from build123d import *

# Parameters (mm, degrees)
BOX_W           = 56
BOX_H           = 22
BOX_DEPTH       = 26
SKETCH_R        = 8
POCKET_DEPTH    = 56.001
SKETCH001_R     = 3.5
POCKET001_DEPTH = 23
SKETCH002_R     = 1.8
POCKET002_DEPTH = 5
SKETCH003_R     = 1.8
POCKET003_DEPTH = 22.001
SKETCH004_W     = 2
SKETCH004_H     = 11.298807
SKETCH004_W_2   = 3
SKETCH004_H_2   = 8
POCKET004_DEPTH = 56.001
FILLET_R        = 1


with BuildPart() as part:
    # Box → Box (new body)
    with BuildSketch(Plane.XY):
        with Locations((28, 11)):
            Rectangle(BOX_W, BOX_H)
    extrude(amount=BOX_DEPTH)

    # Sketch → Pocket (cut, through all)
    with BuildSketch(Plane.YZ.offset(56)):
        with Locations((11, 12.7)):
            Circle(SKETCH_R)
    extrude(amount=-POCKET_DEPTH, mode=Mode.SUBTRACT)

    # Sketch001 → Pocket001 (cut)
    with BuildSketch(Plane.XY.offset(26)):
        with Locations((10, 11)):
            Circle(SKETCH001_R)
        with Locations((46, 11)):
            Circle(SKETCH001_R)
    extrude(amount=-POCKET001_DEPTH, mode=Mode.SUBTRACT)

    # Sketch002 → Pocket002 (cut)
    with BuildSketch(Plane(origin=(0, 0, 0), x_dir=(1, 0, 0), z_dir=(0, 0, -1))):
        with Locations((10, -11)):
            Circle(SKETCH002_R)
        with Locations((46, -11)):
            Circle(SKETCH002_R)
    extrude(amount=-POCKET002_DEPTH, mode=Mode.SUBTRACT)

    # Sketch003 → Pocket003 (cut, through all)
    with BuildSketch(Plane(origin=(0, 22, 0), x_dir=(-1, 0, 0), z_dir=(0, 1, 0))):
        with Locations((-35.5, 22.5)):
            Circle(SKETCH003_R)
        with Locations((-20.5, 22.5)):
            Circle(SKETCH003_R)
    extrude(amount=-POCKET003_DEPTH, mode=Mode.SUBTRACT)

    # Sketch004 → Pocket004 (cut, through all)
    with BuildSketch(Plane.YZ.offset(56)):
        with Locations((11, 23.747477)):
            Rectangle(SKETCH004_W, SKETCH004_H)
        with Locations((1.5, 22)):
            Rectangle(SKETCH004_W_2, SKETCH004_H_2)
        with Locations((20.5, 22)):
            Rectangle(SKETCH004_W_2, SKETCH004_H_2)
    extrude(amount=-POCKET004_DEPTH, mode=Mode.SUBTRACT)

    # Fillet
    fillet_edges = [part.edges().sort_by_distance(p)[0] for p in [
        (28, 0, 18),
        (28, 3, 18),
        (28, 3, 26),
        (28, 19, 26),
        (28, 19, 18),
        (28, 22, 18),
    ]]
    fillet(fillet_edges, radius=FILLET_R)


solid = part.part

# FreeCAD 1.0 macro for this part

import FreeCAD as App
import Part
import Sketcher


def edges_at(feature, points):
    """Names of the edges that pass closest to the given points."""
    edges = feature.Shape.Edges
    near = lambda p: min(range(len(edges)), key=lambda i: edges[i].distToShape(Part.Vertex(*p))[0])
    return sorted({f"Edge{near(p) + 1}" for p in points})


def add_polygon(sketch, points):
    """Adds a closed chain of lines whose ends are joined by coincident constraints."""
    first, n = sketch.GeometryCount, len(points)
    for a, b in zip(points, points[1:] + points[:1]):
        sketch.addGeometry(Part.LineSegment(App.Vector(*a, 0), App.Vector(*b, 0)), False)
    for i in range(n):
        sketch.addConstraint(Sketcher.Constraint("Coincident", first + i, 2, first + (i + 1) % n, 1))

doc = App.newDocument("Part")
body = doc.addObject("PartDesign::Body", "Body")

sketch1 = body.newObject("Sketcher::SketchObject", "Sketch")
sketch1.AttachmentSupport = (doc.getObject("XY_Plane"), [""])
sketch1.MapMode = "FlatFace"
add_polygon(sketch1, [(0, 22), (0, 0), (56, 0), (56, 22)])
sketch1.addConstraint([
    Sketcher.Constraint("Vertical", 0),
    Sketcher.Constraint("Horizontal", 1),
    Sketcher.Constraint("Vertical", 2),
    Sketcher.Constraint("Horizontal", 3),
    Sketcher.Constraint("Coincident", 0, 2, -1, 1),
    Sketcher.Constraint("DistanceX", 1, 1, 1, 2, 56.0),
    Sketcher.Constraint("DistanceY", 0, 2, 0, 1, 22.0),
])
pad1 = body.newObject("PartDesign::Pad", "Pad")
pad1.Profile = sketch1
pad1.Length = 26

sketch2 = body.newObject("Sketcher::SketchObject", "Sketch001")
sketch2.AttachmentSupport = (doc.getObject("YZ_Plane"), [""])
sketch2.MapMode = "FlatFace"
sketch2.AttachmentOffset = App.Placement(App.Vector(0, 0, 56), App.Rotation())
sketch2.addGeometry(Part.Circle(App.Vector(11, 13, 0), App.Vector(0, 0, 1), 8), False)
sketch2.addConstraint([
    Sketcher.Constraint("Diameter", 0, 16.0),
    Sketcher.Constraint("DistanceX", -1, 1, 0, 3, 11.0),
    Sketcher.Constraint("DistanceY", -1, 1, 0, 3, 12.7),
])
pocket1 = body.newObject("PartDesign::Pocket", "Pocket")
pocket1.Profile = sketch2
pocket1.Type = "ThroughAll"

sketch3 = body.newObject("Sketcher::SketchObject", "Sketch002")
sketch3.AttachmentSupport = (doc.getObject("XY_Plane"), [""])
sketch3.MapMode = "FlatFace"
sketch3.AttachmentOffset = App.Placement(App.Vector(0, 0, 26), App.Rotation())
sketch3.addGeometry([
    Part.Circle(App.Vector(10, 11, 0), App.Vector(0, 0, 1), 3.5),
    Part.Circle(App.Vector(46, 11, 0), App.Vector(0, 0, 1), 3.5),
], False)
sketch3.addConstraint([
    Sketcher.Constraint("Equal", 0, 1),
    Sketcher.Constraint("Horizontal", 0, 3, 1, 3),
    Sketcher.Constraint("Diameter", 0, 7.0),
    Sketcher.Constraint("DistanceX", -1, 1, 0, 3, 10.0),
    Sketcher.Constraint("DistanceY", -1, 1, 0, 3, 11.0),
    Sketcher.Constraint("DistanceX", -1, 1, 1, 3, 46.0),
])
pocket2 = body.newObject("PartDesign::Pocket", "Pocket001")
pocket2.Profile = sketch3
pocket2.Length = 23

sketch4 = body.newObject("Sketcher::SketchObject", "Sketch003")
sketch4.AttachmentSupport = (doc.getObject("XY_Plane"), [""])
sketch4.MapMode = "FlatFace"
sketch4.addGeometry([
    Part.Circle(App.Vector(10, 11, 0), App.Vector(0, 0, 1), 1.8),
    Part.Circle(App.Vector(46, 11, 0), App.Vector(0, 0, 1), 1.8),
], False)
sketch4.addConstraint([
    Sketcher.Constraint("Equal", 0, 1),
    Sketcher.Constraint("Horizontal", 0, 3, 1, 3),
    Sketcher.Constraint("Diameter", 0, 3.6),
    Sketcher.Constraint("DistanceX", -1, 1, 0, 3, 10.0),
    Sketcher.Constraint("DistanceY", -1, 1, 0, 3, 11.0),
    Sketcher.Constraint("DistanceX", -1, 1, 1, 3, 46.0),
])
pocket3 = body.newObject("PartDesign::Pocket", "Pocket002")
pocket3.Profile = sketch4
pocket3.Length = 5
pocket3.Reversed = True

sketch5 = body.newObject("Sketcher::SketchObject", "Sketch004")
sketch5.AttachmentSupport = (doc.getObject("XZ_Plane"), [""])
sketch5.MapMode = "FlatFace"
sketch5.AttachmentOffset = App.Placement(App.Vector(0, 0, -22), App.Rotation())
sketch5.addGeometry([
    Part.Circle(App.Vector(35.5, 22.5, 0), App.Vector(0, 0, 1), 1.8),
    Part.Circle(App.Vector(20.5, 22.5, 0), App.Vector(0, 0, 1), 1.8),
], False)
sketch5.addConstraint([
    Sketcher.Constraint("Equal", 0, 1),
    Sketcher.Constraint("Horizontal", 0, 3, 1, 3),
    Sketcher.Constraint("Diameter", 0, 3.6),
    Sketcher.Constraint("DistanceX", 1, 3, 0, 3, 15.0),
    Sketcher.Constraint("DistanceX", -1, 1, 0, 3, 35.5),
    Sketcher.Constraint("DistanceY", -1, 1, 0, 3, 22.5),
])
pocket4 = body.newObject("PartDesign::Pocket", "Pocket003")
pocket4.Profile = sketch5
pocket4.Type = "ThroughAll"
pocket4.Reversed = True

sketch6 = body.newObject("Sketcher::SketchObject", "Sketch005")
sketch6.AttachmentSupport = (doc.getObject("YZ_Plane"), [""])
sketch6.MapMode = "FlatFace"
sketch6.AttachmentOffset = App.Placement(App.Vector(0, 0, 56), App.Rotation())
add_polygon(sketch6, [(10, 29.4), (10, 18.1), (12, 18.1), (12, 29.4)])
add_polygon(sketch6, [(0, 26), (0, 18), (3, 18), (3, 26)])
add_polygon(sketch6, [(19, 26), (19, 18), (22, 18), (22, 26)])
sketch6.addConstraint([
    Sketcher.Constraint("Vertical", 0),
    Sketcher.Constraint("Horizontal", 1),
    Sketcher.Constraint("Vertical", 2),
    Sketcher.Constraint("Horizontal", 3),
    Sketcher.Constraint("Vertical", 4),
    Sketcher.Constraint("Horizontal", 5),
    Sketcher.Constraint("Vertical", 6),
    Sketcher.Constraint("Horizontal", 7),
    Sketcher.Constraint("Vertical", 8),
    Sketcher.Constraint("Horizontal", 9),
    Sketcher.Constraint("Vertical", 10),
    Sketcher.Constraint("Horizontal", 11),
    Sketcher.Constraint("PointOnObject", 4, 2, -2),
    Sketcher.Constraint("Horizontal", 5, 2, 8, 2),
    Sketcher.Constraint("Horizontal", 7, 2, 10, 2),
    Sketcher.Constraint("Equal", 7, 9),
    Sketcher.Constraint("DistanceX", 1, 1, 1, 2, 2.0),
    Sketcher.Constraint("DistanceX", 5, 1, 5, 2, 3.0),
    Sketcher.Constraint("DistanceY", 4, 2, 4, 1, 8.0),
    Sketcher.Constraint("DistanceX", -1, 1, 0, 2, 10.0),
    Sketcher.Constraint("DistanceY", -1, 1, 4, 2, 18.0),
    Sketcher.Constraint("DistanceX", -1, 1, 8, 2, 19.0),
    Sketcher.Constraint("DistanceY", 0, 2, 0, 1, 11.298807),
    Sketcher.Constraint("DistanceY", -1, 1, 2, 2, 29.396881),
])
pocket5 = body.newObject("PartDesign::Pocket", "Pocket004")
pocket5.Profile = sketch6
pocket5.Type = "ThroughAll"
doc.recompute()

fillet = body.newObject("PartDesign::Fillet", "Fillet")
fillet.Base = (pocket5, edges_at(pocket5, [
    (28, 0, 18),
    (28, 3, 18),
    (28, 3, 26),
    (28, 19, 26),
    (28, 19, 18),
    (28, 22, 18),
]))
fillet.Radius = 1

doc.recompute()
